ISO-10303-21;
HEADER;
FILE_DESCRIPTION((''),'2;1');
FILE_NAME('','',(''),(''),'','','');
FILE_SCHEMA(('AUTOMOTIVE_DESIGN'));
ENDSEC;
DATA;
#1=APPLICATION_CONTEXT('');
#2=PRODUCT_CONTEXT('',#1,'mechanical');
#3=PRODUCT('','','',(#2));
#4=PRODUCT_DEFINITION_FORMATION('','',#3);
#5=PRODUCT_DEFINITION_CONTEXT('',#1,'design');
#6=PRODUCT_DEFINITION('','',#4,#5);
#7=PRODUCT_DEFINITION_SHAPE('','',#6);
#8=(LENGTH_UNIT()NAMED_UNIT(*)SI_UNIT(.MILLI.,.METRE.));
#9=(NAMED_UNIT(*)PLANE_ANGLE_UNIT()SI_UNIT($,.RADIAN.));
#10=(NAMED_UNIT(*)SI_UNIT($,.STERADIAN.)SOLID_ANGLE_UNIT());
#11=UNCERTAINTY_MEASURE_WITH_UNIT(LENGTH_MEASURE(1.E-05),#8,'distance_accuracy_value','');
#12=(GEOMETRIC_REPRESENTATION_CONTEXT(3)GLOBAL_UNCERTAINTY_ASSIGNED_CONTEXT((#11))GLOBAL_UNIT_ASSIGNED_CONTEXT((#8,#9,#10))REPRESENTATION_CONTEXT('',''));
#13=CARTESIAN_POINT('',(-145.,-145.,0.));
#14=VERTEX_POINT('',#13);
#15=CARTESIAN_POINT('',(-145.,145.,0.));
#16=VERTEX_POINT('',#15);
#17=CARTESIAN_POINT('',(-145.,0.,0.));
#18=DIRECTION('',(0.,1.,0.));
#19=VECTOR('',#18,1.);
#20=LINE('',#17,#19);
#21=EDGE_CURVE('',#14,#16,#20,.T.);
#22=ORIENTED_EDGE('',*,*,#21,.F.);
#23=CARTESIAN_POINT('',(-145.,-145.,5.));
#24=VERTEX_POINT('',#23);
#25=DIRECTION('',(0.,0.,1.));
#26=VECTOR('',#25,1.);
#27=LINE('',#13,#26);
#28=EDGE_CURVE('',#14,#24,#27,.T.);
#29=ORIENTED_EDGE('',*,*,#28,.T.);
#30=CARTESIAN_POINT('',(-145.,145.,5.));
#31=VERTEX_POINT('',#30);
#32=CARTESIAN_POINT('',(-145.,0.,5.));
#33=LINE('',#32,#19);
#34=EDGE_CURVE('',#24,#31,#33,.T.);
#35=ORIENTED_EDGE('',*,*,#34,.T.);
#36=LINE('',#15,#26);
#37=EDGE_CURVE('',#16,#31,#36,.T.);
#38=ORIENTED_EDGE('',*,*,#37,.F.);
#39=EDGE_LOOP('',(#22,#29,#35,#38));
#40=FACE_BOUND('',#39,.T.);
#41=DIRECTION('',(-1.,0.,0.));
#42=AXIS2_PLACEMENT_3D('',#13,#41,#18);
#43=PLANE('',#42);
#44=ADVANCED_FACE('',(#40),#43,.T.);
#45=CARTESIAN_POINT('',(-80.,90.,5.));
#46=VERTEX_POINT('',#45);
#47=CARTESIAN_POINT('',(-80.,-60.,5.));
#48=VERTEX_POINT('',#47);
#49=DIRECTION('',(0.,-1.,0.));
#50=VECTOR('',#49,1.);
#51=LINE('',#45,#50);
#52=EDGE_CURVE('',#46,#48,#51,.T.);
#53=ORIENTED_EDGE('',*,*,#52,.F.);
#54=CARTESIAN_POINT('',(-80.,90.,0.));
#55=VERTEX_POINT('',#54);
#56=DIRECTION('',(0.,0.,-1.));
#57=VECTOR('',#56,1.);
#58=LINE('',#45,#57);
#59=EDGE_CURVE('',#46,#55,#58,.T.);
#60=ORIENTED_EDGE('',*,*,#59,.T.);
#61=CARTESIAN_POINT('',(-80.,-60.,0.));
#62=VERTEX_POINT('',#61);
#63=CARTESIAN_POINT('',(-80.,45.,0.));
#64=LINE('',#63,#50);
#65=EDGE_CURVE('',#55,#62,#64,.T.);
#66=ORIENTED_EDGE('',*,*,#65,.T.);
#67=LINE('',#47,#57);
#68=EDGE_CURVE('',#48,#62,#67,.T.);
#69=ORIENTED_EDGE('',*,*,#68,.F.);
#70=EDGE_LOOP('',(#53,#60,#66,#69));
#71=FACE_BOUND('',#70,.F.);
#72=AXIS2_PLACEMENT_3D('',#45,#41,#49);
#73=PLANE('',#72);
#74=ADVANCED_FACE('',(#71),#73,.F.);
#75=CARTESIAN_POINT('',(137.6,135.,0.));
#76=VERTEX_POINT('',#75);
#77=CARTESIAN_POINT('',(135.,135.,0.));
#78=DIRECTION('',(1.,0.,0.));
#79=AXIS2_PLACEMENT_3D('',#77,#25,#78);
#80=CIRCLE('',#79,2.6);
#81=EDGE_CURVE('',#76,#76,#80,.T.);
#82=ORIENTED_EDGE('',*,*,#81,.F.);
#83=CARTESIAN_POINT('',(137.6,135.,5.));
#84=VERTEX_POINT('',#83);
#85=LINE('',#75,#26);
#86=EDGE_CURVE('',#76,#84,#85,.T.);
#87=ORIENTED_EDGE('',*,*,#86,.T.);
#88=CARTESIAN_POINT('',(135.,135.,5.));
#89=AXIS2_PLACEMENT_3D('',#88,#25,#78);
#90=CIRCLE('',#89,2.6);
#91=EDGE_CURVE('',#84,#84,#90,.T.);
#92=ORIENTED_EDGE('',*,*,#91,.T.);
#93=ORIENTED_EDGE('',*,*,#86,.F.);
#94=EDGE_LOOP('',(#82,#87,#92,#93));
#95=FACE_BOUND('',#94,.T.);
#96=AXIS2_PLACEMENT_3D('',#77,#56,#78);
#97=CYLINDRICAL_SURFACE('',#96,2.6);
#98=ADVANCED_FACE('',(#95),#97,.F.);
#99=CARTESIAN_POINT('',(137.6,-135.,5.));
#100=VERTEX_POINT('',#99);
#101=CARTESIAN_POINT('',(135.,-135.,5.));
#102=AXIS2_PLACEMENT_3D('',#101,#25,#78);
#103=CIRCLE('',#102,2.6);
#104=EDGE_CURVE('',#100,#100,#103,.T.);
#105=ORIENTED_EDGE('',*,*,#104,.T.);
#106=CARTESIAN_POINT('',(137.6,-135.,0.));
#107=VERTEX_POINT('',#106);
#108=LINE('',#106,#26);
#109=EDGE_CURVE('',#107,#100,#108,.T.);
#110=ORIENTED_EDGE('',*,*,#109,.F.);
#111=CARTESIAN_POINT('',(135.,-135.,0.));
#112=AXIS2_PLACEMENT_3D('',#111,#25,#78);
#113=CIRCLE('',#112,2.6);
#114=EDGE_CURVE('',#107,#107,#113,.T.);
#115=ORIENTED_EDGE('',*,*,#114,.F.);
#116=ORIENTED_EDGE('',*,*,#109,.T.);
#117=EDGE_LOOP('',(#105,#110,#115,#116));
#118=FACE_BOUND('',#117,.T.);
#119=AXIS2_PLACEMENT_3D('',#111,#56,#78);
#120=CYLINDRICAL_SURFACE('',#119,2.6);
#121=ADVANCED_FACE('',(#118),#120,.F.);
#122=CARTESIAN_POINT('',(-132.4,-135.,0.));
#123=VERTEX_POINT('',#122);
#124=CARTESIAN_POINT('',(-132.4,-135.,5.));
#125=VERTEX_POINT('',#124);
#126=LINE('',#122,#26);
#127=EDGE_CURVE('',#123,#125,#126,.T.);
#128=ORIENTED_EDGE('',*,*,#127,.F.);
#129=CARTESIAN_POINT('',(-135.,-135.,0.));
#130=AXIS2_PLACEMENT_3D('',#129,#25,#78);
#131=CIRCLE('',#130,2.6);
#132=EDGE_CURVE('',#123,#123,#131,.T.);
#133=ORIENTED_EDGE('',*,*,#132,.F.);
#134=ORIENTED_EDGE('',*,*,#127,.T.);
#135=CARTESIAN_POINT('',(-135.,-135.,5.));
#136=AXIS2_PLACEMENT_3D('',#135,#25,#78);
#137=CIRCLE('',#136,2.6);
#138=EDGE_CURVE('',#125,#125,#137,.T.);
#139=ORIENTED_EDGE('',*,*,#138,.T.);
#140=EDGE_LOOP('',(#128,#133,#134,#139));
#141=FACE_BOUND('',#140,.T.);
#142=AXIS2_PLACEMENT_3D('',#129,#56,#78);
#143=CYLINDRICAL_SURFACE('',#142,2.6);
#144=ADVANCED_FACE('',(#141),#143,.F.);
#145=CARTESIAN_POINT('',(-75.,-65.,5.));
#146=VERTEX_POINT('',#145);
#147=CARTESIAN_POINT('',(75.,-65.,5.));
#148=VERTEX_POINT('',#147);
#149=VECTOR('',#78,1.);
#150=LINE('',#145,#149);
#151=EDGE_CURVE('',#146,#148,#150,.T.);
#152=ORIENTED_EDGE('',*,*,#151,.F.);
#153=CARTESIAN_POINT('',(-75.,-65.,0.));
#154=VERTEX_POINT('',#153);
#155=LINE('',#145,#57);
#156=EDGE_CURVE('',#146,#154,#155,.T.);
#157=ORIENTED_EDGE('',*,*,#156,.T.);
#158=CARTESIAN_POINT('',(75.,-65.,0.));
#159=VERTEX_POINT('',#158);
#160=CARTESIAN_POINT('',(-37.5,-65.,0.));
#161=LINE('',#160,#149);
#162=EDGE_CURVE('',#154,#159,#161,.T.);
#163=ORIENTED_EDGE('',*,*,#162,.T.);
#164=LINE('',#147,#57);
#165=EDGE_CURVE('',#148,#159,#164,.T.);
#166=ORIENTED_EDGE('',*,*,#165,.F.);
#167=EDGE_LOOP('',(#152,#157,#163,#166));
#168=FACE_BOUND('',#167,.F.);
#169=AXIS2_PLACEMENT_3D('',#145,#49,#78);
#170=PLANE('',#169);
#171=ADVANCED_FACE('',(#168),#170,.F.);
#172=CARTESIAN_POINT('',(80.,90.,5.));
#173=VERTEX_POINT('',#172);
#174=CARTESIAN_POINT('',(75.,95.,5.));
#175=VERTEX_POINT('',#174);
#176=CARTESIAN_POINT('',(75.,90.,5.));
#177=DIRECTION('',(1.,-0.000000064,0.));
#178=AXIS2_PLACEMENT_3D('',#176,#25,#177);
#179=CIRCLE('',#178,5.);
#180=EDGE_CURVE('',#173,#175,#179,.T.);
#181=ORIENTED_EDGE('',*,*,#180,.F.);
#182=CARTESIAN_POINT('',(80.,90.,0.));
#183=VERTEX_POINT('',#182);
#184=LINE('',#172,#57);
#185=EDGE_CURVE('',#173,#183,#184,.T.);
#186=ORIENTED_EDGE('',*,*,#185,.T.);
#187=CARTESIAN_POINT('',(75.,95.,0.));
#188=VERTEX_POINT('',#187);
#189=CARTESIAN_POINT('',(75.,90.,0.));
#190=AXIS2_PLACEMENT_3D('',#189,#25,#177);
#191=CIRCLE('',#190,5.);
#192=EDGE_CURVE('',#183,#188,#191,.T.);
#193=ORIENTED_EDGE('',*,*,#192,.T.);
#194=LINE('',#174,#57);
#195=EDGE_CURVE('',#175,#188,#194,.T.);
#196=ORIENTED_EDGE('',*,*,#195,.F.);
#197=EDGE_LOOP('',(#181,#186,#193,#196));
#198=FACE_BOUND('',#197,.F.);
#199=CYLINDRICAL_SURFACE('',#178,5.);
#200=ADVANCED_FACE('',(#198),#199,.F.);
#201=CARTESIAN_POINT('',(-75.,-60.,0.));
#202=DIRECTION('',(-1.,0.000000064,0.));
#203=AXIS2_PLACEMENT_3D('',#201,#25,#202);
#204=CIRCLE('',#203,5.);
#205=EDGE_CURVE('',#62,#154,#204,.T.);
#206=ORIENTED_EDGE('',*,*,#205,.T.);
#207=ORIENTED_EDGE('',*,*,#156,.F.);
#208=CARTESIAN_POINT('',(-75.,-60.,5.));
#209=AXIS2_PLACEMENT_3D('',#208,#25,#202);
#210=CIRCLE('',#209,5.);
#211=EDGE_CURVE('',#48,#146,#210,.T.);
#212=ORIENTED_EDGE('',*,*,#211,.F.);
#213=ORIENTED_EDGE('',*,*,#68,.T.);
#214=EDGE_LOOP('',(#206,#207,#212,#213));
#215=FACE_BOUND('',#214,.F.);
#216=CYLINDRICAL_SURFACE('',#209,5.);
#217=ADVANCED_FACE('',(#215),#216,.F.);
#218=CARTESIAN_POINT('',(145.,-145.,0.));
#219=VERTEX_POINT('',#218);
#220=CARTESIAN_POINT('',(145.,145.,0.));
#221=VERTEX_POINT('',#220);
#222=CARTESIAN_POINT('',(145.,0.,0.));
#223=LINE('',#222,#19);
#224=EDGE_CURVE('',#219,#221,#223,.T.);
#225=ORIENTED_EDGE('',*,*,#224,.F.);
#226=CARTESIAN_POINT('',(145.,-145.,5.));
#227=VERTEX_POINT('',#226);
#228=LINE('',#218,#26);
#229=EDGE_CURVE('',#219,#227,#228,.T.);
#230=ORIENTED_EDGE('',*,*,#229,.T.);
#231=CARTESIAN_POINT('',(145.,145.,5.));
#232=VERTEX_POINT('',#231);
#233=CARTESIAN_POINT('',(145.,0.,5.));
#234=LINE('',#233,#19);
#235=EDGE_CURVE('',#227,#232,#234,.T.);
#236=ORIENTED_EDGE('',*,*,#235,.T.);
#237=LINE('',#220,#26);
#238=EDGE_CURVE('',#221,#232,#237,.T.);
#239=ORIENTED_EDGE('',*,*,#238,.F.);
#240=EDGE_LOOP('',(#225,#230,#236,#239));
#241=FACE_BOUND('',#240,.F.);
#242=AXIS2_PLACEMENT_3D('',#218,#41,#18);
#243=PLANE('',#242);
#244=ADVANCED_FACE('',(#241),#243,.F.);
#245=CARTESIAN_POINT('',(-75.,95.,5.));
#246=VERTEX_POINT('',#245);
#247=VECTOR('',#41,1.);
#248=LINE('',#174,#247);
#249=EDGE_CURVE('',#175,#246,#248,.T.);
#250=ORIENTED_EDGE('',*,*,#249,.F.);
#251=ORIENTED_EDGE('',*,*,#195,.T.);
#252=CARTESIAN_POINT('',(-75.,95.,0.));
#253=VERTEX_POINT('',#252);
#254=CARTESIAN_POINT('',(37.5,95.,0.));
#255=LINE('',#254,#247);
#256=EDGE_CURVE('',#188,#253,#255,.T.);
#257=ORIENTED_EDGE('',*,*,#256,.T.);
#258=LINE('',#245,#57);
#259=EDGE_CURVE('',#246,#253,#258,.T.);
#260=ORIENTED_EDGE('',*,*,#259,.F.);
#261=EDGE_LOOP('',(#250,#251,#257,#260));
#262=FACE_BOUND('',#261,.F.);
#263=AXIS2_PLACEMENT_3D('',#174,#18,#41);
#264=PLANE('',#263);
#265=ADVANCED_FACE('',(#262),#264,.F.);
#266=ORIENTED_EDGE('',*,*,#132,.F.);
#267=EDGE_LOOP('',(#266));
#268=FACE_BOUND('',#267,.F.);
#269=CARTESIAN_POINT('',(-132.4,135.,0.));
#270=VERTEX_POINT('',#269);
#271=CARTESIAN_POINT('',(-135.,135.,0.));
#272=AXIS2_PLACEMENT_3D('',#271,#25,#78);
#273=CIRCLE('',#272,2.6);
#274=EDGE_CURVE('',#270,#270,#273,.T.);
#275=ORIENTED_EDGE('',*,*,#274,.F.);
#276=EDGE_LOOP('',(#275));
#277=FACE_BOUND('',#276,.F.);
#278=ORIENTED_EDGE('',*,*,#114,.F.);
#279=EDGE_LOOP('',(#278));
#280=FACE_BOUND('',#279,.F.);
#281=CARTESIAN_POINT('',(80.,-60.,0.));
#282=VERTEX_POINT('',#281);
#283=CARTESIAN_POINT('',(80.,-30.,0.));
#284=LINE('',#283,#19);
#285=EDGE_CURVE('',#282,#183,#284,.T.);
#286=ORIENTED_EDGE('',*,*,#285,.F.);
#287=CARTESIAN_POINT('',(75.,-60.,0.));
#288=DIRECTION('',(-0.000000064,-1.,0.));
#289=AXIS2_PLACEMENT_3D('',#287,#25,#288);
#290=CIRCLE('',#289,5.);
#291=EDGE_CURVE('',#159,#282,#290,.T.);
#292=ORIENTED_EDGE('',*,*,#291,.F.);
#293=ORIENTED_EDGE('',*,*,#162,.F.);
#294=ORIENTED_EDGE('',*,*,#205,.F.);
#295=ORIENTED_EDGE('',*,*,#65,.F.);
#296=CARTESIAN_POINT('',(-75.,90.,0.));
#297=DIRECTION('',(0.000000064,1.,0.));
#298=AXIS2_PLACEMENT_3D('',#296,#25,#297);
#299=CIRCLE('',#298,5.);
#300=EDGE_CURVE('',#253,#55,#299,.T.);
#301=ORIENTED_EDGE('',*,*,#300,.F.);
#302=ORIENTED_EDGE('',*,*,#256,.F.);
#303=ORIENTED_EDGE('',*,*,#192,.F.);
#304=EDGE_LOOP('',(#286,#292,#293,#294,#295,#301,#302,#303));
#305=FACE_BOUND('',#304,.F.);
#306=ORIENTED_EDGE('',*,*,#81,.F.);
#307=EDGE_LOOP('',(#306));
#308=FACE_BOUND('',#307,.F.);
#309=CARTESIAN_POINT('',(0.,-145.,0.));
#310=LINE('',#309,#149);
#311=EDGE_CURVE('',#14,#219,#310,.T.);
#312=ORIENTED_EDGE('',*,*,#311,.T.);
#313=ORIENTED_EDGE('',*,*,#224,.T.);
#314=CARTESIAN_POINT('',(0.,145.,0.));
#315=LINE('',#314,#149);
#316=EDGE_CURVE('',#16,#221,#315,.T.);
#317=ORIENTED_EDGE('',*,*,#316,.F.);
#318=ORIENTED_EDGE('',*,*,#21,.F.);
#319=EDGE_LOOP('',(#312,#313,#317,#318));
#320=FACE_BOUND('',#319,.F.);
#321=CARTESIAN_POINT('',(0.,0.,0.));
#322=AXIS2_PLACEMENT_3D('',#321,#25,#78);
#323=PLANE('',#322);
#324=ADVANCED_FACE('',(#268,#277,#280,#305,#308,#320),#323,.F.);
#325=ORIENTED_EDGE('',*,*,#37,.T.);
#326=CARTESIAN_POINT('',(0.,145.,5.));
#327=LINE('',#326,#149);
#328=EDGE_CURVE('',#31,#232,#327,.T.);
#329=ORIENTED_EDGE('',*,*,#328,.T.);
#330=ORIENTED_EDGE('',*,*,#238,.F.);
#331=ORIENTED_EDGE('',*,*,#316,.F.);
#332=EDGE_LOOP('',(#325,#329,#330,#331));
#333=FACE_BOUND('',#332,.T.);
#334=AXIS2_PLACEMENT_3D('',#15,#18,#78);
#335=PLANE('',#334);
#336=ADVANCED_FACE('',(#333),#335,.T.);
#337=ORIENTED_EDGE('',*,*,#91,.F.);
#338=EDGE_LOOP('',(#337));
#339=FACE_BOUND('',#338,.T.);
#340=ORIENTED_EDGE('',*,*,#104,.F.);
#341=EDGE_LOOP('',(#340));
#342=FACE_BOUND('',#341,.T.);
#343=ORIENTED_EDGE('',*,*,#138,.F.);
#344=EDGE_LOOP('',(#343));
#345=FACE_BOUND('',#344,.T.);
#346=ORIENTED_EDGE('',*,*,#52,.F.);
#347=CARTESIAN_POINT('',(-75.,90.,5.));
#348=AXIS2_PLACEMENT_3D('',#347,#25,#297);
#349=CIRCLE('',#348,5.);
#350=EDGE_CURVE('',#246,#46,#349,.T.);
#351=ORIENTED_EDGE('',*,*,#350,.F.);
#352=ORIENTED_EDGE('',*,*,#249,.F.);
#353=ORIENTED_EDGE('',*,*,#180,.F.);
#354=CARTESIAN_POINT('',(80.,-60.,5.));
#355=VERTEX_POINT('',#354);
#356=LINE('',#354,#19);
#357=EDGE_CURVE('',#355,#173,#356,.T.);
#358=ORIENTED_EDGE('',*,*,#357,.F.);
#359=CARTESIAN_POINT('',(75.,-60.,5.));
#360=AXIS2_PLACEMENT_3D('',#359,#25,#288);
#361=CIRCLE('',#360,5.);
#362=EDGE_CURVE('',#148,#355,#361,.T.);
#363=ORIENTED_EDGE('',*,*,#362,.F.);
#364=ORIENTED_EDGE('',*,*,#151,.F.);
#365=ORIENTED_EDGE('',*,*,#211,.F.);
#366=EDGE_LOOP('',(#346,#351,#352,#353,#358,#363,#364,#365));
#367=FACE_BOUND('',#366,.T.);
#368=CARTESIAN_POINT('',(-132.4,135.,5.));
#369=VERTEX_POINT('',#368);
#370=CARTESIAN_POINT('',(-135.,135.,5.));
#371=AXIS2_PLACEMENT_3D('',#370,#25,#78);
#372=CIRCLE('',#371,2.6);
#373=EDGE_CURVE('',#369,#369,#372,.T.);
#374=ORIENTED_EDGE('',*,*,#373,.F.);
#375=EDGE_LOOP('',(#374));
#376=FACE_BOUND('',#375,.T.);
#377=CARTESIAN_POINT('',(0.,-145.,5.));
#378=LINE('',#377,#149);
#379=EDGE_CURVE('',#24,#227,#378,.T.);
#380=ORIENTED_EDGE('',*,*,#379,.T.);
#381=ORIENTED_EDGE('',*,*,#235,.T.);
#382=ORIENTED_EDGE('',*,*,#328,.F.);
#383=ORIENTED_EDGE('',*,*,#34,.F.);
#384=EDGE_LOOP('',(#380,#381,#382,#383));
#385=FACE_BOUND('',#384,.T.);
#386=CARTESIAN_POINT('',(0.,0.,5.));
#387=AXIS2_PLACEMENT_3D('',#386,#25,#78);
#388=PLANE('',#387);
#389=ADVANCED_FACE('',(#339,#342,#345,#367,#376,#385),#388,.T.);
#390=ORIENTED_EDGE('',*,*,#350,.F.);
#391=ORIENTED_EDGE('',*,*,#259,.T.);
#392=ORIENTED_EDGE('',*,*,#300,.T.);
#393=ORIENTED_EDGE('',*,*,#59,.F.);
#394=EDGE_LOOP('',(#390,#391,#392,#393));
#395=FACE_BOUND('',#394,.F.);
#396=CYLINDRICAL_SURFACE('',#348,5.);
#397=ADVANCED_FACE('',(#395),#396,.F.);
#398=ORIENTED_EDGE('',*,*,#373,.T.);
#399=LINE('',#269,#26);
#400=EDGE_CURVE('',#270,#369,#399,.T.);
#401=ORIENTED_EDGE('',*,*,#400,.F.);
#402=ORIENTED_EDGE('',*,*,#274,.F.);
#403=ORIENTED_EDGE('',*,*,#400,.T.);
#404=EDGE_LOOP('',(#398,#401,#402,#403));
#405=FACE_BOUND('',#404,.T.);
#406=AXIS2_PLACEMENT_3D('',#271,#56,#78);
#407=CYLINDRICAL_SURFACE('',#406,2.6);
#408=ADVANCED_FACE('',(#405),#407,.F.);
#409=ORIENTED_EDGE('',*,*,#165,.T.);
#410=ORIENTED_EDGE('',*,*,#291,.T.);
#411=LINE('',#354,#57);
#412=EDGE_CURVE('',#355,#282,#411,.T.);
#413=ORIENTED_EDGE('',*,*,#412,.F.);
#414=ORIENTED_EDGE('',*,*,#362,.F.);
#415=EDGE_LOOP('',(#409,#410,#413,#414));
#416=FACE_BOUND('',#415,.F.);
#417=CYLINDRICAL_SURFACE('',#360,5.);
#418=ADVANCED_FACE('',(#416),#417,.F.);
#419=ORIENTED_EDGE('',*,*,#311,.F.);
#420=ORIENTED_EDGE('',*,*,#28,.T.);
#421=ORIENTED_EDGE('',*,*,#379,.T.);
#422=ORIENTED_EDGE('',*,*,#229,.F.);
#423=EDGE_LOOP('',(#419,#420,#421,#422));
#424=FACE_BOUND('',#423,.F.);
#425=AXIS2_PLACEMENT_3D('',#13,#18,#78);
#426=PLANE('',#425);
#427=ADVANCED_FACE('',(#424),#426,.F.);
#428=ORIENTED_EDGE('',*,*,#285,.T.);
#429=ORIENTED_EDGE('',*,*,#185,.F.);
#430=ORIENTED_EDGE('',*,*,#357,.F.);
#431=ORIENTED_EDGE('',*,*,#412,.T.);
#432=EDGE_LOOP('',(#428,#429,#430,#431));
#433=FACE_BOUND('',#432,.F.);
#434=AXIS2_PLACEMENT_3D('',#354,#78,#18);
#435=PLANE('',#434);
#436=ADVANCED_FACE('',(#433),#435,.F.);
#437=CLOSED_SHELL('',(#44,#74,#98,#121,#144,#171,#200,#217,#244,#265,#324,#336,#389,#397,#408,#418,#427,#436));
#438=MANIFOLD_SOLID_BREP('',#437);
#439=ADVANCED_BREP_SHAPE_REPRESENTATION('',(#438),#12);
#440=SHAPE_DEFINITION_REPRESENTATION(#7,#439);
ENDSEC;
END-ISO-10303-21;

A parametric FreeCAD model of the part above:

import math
import FreeCAD as App
import Part
import Sketcher


def add_polygon(sketch, points):
    """Adds a closed chain of lines whose ends are joined by coincident constraints."""
    first, n = sketch.GeometryCount, len(points)
    for a, b in zip(points, points[1:] + points[:1]):
        sketch.addGeometry(Part.LineSegment(App.Vector(*a, 0), App.Vector(*b, 0)), False)
    for i in range(n):
        sketch.addConstraint(Sketcher.Constraint("Coincident", first + i, 2, first + (i + 1) % n, 1))

doc = App.newDocument("Part")
body = doc.addObject("PartDesign::Body", "Body")

# Sketch on XY plane
sketch1 = body.newObject("Sketcher::SketchObject", "Sketch")
sketch1.AttachmentSupport = (doc.getObject("XY_Plane"), [""])
sketch1.MapMode = "FlatFace"
add_polygon(sketch1, [(-145, 145), (-145, -145), (145, -145), (145, 145)])  # lines 0-3
sketch1.addGeometry(Part.Circle(App.Vector(-135, -135, 0), App.Vector(0, 0, 1), 2.6), False)  # 4
sketch1.addGeometry(Part.Circle(App.Vector(135, -135, 0), App.Vector(0, 0, 1), 2.6), False)  # 5
sketch1.addGeometry(Part.Circle(App.Vector(-135, 135, 0), App.Vector(0, 0, 1), 2.6), False)  # 6
sketch1.addGeometry(Part.Circle(App.Vector(135, 135, 0), App.Vector(0, 0, 1), 2.6), False)  # 7
sketch1.addConstraint([
    Sketcher.Constraint("Vertical", 0),
    Sketcher.Constraint("Horizontal", 1),
    Sketcher.Constraint("Vertical", 2),
    Sketcher.Constraint("Horizontal", 3),
    Sketcher.Constraint("Equal", 4, 5),
    Sketcher.Constraint("Equal", 5, 6),
    Sketcher.Constraint("Equal", 6, 7),
    Sketcher.Constraint("Symmetric", 5, 3, 6, 3, -1, 1),
    Sketcher.Constraint("Symmetric", 4, 3, 7, 3, -1, 1),
    Sketcher.Constraint("Symmetric", 0, 2, 2, 2, -1, 1),
    Sketcher.Constraint("Symmetric", 4, 3, 5, 3, -2),
    Sketcher.Constraint("Equal", 3, 0),
    Sketcher.Constraint("Diameter", 4, 5.2),
    Sketcher.Constraint("DistanceX", 1, 1, 1, 2, 290.0),
    Sketcher.Constraint("DistanceX", 4, 3, -1, 1, 135.0),
    Sketcher.Constraint("DistanceY", 4, 3, -1, 1, 135.0),
])
pad1 = body.newObject("PartDesign::Pad", "Pad")
pad1.Profile = sketch1
pad1.Length = 5

# Sketch on XY plane
sketch2 = body.newObject("Sketcher::SketchObject", "Sketch001")
sketch2.AttachmentSupport = (doc.getObject("XY_Plane"), [""])
sketch2.MapMode = "FlatFace"
sketch2.AttachmentOffset = App.Placement(App.Vector(0, 0, 5), App.Rotation())
sketch2.addGeometry([
    Part.LineSegment(App.Vector(-75, -65, 0), App.Vector(75, -65, 0)),  # 0
    Part.ArcOfCircle(Part.Circle(App.Vector(75, -60, 0), App.Vector(0, 0, 1), 5), math.radians(-90), math.radians(0)),  # 1
    Part.LineSegment(App.Vector(80, -60, 0), App.Vector(80, 90, 0)),  # 2
    Part.ArcOfCircle(Part.Circle(App.Vector(75, 90, 0), App.Vector(0, 0, 1), 5), math.radians(0), math.radians(90)),  # 3
    Part.LineSegment(App.Vector(75, 95, 0), App.Vector(-75, 95, 0)),  # 4
    Part.ArcOfCircle(Part.Circle(App.Vector(-75, 90, 0), App.Vector(0, 0, 1), 5), math.radians(90), math.radians(180)),  # 5
    Part.LineSegment(App.Vector(-80, 90, 0), App.Vector(-80, -60, 0)),  # 6
    Part.ArcOfCircle(Part.Circle(App.Vector(-75, -60, 0), App.Vector(0, 0, 1), 5), math.radians(180), math.radians(270)),  # 7
], False)
sketch2.addConstraint([
    Sketcher.Constraint("Tangent", 0, 2, 1, 1),
    Sketcher.Constraint("Tangent", 1, 2, 2, 1),
    Sketcher.Constraint("Tangent", 2, 2, 3, 1),
    Sketcher.Constraint("Tangent", 3, 2, 4, 1),
    Sketcher.Constraint("Tangent", 4, 2, 5, 1),
    Sketcher.Constraint("Tangent", 5, 2, 6, 1),
    Sketcher.Constraint("Tangent", 6, 2, 7, 1),
    Sketcher.Constraint("Tangent", 7, 2, 0, 1),
    Sketcher.Constraint("Horizontal", 0),
    Sketcher.Constraint("Vertical", 2),
    Sketcher.Constraint("Horizontal", 4),
    Sketcher.Constraint("Vertical", 6),
    Sketcher.Constraint("Equal", 1, 3),
    Sketcher.Constraint("Equal", 3, 5),
    Sketcher.Constraint("Equal", 5, 7),
    Sketcher.Constraint("Equal", 4, 2),
    Sketcher.Constraint("Radius", 1, 5.0),
    Sketcher.Constraint("DistanceX", 0, 1, 0, 2, 150.0),
    Sketcher.Constraint("DistanceX", -1, 1, 1, 3, 75.0),
    Sketcher.Constraint("DistanceY", 1, 3, -1, 1, 60.0),
])
pocket1 = body.newObject("PartDesign::Pocket", "Pocket")
pocket1.Profile = sketch2
pocket1.Type = "ThroughAll"

doc.recompute()
